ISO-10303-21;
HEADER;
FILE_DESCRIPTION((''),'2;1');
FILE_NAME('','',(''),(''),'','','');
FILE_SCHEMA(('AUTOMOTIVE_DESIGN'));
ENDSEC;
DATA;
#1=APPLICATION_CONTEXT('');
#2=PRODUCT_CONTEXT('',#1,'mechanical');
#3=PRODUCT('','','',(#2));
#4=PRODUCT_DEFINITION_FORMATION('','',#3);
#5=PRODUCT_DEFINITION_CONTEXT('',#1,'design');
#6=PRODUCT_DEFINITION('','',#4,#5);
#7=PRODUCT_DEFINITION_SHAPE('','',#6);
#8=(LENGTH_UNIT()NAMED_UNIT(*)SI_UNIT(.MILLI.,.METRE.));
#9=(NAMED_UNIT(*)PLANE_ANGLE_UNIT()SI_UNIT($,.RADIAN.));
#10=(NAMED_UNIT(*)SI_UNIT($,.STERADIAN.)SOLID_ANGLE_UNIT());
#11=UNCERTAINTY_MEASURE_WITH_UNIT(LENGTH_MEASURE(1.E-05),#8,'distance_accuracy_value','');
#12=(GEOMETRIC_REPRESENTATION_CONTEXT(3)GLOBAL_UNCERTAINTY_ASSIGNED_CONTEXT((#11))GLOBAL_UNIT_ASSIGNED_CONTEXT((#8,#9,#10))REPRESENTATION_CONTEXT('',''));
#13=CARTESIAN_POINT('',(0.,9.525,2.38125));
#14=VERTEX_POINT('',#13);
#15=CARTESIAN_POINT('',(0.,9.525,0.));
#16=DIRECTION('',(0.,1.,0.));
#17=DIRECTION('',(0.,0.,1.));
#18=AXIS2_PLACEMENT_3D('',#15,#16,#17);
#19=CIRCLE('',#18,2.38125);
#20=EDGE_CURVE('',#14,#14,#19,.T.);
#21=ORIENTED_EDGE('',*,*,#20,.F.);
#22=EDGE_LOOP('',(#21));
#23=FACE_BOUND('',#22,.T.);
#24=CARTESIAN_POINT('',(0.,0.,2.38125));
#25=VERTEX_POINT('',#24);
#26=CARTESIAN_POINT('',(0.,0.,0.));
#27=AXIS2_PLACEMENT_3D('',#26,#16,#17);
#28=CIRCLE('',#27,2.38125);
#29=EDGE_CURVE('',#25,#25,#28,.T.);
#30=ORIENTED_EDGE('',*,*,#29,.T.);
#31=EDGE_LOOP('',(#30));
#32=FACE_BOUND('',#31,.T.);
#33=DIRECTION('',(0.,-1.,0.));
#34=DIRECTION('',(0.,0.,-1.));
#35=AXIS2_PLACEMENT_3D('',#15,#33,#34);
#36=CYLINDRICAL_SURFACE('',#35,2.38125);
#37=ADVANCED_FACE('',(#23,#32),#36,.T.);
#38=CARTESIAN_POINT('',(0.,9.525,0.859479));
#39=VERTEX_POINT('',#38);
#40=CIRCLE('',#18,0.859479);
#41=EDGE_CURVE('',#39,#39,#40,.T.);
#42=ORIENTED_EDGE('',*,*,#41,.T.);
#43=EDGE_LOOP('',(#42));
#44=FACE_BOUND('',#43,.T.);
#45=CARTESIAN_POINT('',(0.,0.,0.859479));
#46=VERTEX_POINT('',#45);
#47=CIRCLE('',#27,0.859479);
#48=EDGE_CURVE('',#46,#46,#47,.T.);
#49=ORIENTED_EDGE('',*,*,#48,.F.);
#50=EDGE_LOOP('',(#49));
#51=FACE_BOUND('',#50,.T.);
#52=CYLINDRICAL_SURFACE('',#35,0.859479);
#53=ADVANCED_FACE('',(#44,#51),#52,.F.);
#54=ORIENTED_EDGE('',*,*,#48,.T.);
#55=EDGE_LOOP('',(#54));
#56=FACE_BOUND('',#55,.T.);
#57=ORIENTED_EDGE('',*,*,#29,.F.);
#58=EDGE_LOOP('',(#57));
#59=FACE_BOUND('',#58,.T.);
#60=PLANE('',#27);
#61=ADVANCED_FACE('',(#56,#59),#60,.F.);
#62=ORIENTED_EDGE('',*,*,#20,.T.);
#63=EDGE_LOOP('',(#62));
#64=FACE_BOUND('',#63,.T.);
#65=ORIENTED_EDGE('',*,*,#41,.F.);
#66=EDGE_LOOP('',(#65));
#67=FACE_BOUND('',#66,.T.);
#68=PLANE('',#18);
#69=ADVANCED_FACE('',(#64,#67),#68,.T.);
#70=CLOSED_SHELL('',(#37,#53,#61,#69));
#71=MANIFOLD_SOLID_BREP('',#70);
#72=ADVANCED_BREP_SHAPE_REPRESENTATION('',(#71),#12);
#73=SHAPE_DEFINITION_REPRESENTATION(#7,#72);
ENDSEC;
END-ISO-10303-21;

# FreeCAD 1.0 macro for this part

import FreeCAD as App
import Part
import Sketcher
from FreeCAD import Vector
Q = App.Units.Quantity

doc = App.newDocument("Part")
body = doc.addObject("PartDesign::Body", "Body")

# Sketch on XZ plane
sketch1 = body.newObject("Sketcher::SketchObject", "Sketch")
sketch1.AttachmentSupport = (doc.getObject("XZ_Plane"), [""])
sketch1.MapMode = "FlatFace"
sketch1.addGeometry(Part.Circle(Vector(0, 0, 0), Vector(0, 0, 1), 2.4), False)
sketch1.addGeometry(Part.Circle(Vector(0, 0, 0), Vector(0, 0, 1), 0.9), False)
sketch1.addConstraint(Sketcher.Constraint("Coincident", 0, 3, -1, 1))
sketch1.addConstraint(Sketcher.Constraint("Coincident", 1, 3, -1, 1))
sketch1.addConstraint(Sketcher.Constraint("Diameter", 0, Q("0.1875 in")))
sketch1.addConstraint(Sketcher.Constraint("Diameter", 1, 1.718958))
pad1 = body.newObject("PartDesign::Pad", "Pad")
pad1.Profile = sketch1
pad1.Length = Q("0.375 in")
pad1.Reversed = True

doc.recompute()
